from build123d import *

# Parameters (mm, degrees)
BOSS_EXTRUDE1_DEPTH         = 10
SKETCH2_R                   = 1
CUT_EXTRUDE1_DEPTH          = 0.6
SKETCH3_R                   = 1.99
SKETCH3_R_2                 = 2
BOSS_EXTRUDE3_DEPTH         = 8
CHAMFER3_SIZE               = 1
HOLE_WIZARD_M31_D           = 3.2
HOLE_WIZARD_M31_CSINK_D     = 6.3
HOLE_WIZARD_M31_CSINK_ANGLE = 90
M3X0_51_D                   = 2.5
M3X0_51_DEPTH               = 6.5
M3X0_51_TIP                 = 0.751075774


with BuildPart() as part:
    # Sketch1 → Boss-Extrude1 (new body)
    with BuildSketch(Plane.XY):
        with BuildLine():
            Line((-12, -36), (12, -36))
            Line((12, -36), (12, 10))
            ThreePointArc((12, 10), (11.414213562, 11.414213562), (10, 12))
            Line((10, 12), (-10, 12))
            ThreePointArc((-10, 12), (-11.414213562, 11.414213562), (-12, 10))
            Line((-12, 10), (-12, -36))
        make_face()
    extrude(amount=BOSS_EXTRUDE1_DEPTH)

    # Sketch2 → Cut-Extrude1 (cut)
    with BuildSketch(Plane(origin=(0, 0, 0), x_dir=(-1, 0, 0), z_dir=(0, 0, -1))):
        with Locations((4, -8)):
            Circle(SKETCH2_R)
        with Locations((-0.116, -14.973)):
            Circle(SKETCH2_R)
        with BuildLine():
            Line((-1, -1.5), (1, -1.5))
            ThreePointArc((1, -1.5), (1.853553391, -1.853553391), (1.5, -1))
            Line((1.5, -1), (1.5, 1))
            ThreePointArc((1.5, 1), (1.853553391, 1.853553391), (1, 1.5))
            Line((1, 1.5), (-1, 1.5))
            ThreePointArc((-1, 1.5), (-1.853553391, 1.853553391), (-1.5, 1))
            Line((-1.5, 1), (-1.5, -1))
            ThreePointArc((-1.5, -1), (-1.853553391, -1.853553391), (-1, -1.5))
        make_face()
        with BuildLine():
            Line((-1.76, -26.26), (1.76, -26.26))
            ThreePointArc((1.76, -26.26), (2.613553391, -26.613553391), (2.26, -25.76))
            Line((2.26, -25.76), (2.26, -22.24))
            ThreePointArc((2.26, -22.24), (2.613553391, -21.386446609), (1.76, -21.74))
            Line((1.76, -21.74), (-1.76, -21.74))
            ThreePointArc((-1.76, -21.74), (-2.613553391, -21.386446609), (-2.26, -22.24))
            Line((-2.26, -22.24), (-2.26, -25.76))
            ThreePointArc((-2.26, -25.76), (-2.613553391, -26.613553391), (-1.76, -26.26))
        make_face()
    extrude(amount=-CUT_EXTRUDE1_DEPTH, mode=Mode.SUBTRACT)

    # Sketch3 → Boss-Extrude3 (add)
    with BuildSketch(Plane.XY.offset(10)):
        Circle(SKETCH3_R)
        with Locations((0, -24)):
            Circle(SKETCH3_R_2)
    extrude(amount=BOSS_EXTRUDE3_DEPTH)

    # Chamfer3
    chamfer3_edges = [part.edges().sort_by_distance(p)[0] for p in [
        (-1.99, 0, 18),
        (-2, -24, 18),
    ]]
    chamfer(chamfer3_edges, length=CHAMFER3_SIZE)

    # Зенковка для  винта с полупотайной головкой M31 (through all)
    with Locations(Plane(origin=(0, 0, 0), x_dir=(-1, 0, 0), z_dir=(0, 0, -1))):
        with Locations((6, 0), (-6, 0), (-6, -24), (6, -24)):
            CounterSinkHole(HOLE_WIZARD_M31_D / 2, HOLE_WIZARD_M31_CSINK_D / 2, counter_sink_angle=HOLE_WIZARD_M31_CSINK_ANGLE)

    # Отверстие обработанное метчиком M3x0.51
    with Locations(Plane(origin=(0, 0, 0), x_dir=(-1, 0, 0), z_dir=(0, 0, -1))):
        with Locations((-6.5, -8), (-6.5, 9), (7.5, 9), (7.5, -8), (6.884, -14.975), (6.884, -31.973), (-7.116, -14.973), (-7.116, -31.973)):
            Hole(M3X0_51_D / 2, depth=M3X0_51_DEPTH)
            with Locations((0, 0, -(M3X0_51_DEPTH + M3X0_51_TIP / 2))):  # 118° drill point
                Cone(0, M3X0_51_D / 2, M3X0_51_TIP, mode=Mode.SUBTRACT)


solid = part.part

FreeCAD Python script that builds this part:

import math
import FreeCAD as App
import Part
import Sketcher
Q = App.Units.Quantity


def edges_at(feature, points):
    """Names of the edges that pass closest to the given points."""
    edges = feature.Shape.Edges
    near = lambda p: min(range(len(edges)), key=lambda i: edges[i].distToShape(Part.Vertex(*p))[0])
    return sorted({f"Edge{near(p) + 1}" for p in points})

doc = App.newDocument("Part")
body = doc.addObject("PartDesign::Body", "Body")

# Sketch on XY plane
sketch1 = body.newObject("Sketcher::SketchObject", "Sketch")
sketch1.AttachmentSupport = (doc.getObject("XY_Plane"), [""])
sketch1.MapMode = "FlatFace"
sketch1.addGeometry(Part.LineSegment(App.Vector(-12, -36, 0), App.Vector(12, -36, 0)), False)
sketch1.addGeometry(Part.LineSegment(App.Vector(12, -36, 0), App.Vector(12, 10, 0)), False)
sketch1.addGeometry(Part.ArcOfCircle(Part.Circle(App.Vector(10, 10, 0), App.Vector(0, 0, 1), 2), math.radians(0), math.radians(90)), False)
sketch1.addGeometry(Part.LineSegment(App.Vector(10, 12, 0), App.Vector(-10, 12, 0)), False)
sketch1.addGeometry(Part.ArcOfCircle(Part.Circle(App.Vector(-10, 10, 0), App.Vector(0, 0, 1), 2), math.radians(90), math.radians(180)), False)
sketch1.addGeometry(Part.LineSegment(App.Vector(-12, 10, 0), App.Vector(-12, -36, 0)), False)
sketch1.addConstraint(Sketcher.Constraint("Coincident", 0, 2, 1, 1))
sketch1.addConstraint(Sketcher.Constraint("Tangent", 1, 2, 2, 1))
sketch1.addConstraint(Sketcher.Constraint("Tangent", 2, 2, 3, 1))
sketch1.addConstraint(Sketcher.Constraint("Tangent", 3, 2, 4, 1))
sketch1.addConstraint(Sketcher.Constraint("Tangent", 4, 2, 5, 1))
sketch1.addConstraint(Sketcher.Constraint("Coincident", 5, 2, 0, 1))
sketch1.addConstraint(Sketcher.Constraint("Horizontal", 0))
sketch1.addConstraint(Sketcher.Constraint("Vertical", 1))
sketch1.addConstraint(Sketcher.Constraint("Horizontal", 3))
sketch1.addConstraint(Sketcher.Constraint("Vertical", 5))
sketch1.addConstraint(Sketcher.Constraint("Equal", 2, 4))
sketch1.addConstraint(Sketcher.Constraint("Radius", 2, Q("2 mm")))
sketch1.addConstraint(Sketcher.Constraint("DistanceX", 0, 1, 0, 2, Q("24 mm")))
sketch1.addConstraint(Sketcher.Constraint("DistanceY", 1, 1, 1, 2, Q("46 mm")))
sketch1.addConstraint(Sketcher.Constraint("DistanceX", -1, 1, 2, 3, Q("10 mm")))
sketch1.addConstraint(Sketcher.Constraint("DistanceY", -1, 1, 2, 3, Q("10 mm")))
pad1 = body.newObject("PartDesign::Pad", "Pad")
pad1.Profile = sketch1
pad1.Length = 10

# Sketch on XY plane
sketch2 = body.newObject("Sketcher::SketchObject", "Sketch001")
sketch2.AttachmentSupport = (doc.getObject("XY_Plane"), [""])
sketch2.MapMode = "FlatFace"
sketch2.addGeometry(Part.Circle(App.Vector(-4, -8, 0), App.Vector(0, 0, 1), 1), False)
sketch2.addGeometry(Part.Circle(App.Vector(0.1, -15, 0), App.Vector(0, 0, 1), 1), False)
sketch2.addGeometry(Part.LineSegment(App.Vector(1, -1.5, 0), App.Vector(-1, -1.5, 0)), False)
sketch2.addGeometry(Part.ArcOfCircle(Part.Circle(App.Vector(-1.5, -1.5, 0), App.Vector(0, 0, 1), 0.5), math.radians(90), math.radians(360)), False)
sketch2.addGeometry(Part.LineSegment(App.Vector(-1.5, -1, 0), App.Vector(-1.5, 1, 0)), False)
sketch2.addGeometry(Part.ArcOfCircle(Part.Circle(App.Vector(-1.5, 1.5, 0), App.Vector(0, 0, 1), 0.5), math.radians(0), math.radians(270)), False)
sketch2.addGeometry(Part.LineSegment(App.Vector(-1, 1.5, 0), App.Vector(1, 1.5, 0)), False)
sketch2.addGeometry(Part.ArcOfCircle(Part.Circle(App.Vector(1.5, 1.5, 0), App.Vector(0, 0, 1), 0.5), math.radians(-90), math.radians(180)), False)
sketch2.addGeometry(Part.LineSegment(App.Vector(1.5, 1, 0), App.Vector(1.5, -1, 0)), False)
sketch2.addGeometry(Part.ArcOfCircle(Part.Circle(App.Vector(1.5, -1.5, 0), App.Vector(0, 0, 1), 0.5), math.radians(180), math.radians(450)), False)
sketch2.addGeometry(Part.LineSegment(App.Vector(1.8, -26.3, 0), App.Vector(-1.8, -26.3, 0)), False)
sketch2.addGeometry(Part.ArcOfCircle(Part.Circle(App.Vector(-2.3, -26.3, 0), App.Vector(0, 0, 1), 0.5), math.radians(90), math.radians(360)), False)
sketch2.addGeometry(Part.LineSegment(App.Vector(-2.3, -25.8, 0), App.Vector(-2.3, -22.2, 0)), False)
sketch2.addGeometry(Part.ArcOfCircle(Part.Circle(App.Vector(-2.3, -21.7, 0), App.Vector(0, 0, 1), 0.5), math.radians(0), math.radians(270)), False)
sketch2.addGeometry(Part.LineSegment(App.Vector(-1.8, -21.7, 0), App.Vector(1.8, -21.7, 0)), False)
sketch2.addGeometry(Part.ArcOfCircle(Part.Circle(App.Vector(2.3, -21.7, 0), App.Vector(0, 0, 1), 0.5), math.radians(-90), math.radians(180)), False)
sketch2.addGeometry(Part.LineSegment(App.Vector(2.3, -22.2, 0), App.Vector(2.3, -25.8, 0)), False)
sketch2.addGeometry(Part.ArcOfCircle(Part.Circle(App.Vector(2.3, -26.3, 0), App.Vector(0, 0, 1), 0.5), math.radians(180), math.radians(450)), False)
sketch2.addConstraint(Sketcher.Constraint("Coincident", 2, 2, 3, 2))
sketch2.addConstraint(Sketcher.Constraint("Coincident", 3, 1, 4, 1))
sketch2.addConstraint(Sketcher.Constraint("Coincident", 4, 2, 5, 2))
sketch2.addConstraint(Sketcher.Constraint("Coincident", 5, 1, 6, 1))
sketch2.addConstraint(Sketcher.Constraint("Coincident", 6, 2, 7, 2))
sketch2.addConstraint(Sketcher.Constraint("Coincident", 7, 1, 8, 1))
sketch2.addConstraint(Sketcher.Constraint("Coincident", 8, 2, 9, 2))
sketch2.addConstraint(Sketcher.Constraint("Coincident", 9, 1, 2, 1))
sketch2.addConstraint(Sketcher.Constraint("Coincident", 10, 2, 11, 2))
sketch2.addConstraint(Sketcher.Constraint("Coincident", 11, 1, 12, 1))
sketch2.addConstraint(Sketcher.Constraint("Coincident", 12, 2, 13, 2))
sketch2.addConstraint(Sketcher.Constraint("Coincident", 13, 1, 14, 1))
sketch2.addConstraint(Sketcher.Constraint("Coincident", 14, 2, 15, 2))
sketch2.addConstraint(Sketcher.Constraint("Coincident", 15, 1, 16, 1))
sketch2.addConstraint(Sketcher.Constraint("Coincident", 16, 2, 17, 2))
sketch2.addConstraint(Sketcher.Constraint("Coincident", 17, 1, 10, 1))
sketch2.addConstraint(Sketcher.Constraint("Horizontal", 2))
sketch2.addConstraint(Sketcher.Constraint("Vertical", 4))
sketch2.addConstraint(Sketcher.Constraint("Horizontal", 6))
sketch2.addConstraint(Sketcher.Constraint("Vertical", 8))
sketch2.addConstraint(Sketcher.Constraint("Horizontal", 10))
sketch2.addConstraint(Sketcher.Constraint("Vertical", 12))
sketch2.addConstraint(Sketcher.Constraint("Horizontal", 14))
sketch2.addConstraint(Sketcher.Constraint("Vertical", 16))
sketch2.addConstraint(Sketcher.Constraint("Equal", 0, 1))
sketch2.addConstraint(Sketcher.Constraint("Equal", 3, 5))
sketch2.addConstraint(Sketcher.Constraint("Equal", 5, 7))
sketch2.addConstraint(Sketcher.Constraint("Equal", 7, 9))
sketch2.addConstraint(Sketcher.Constraint("Equal", 9, 11))
sketch2.addConstraint(Sketcher.Constraint("Equal", 11, 13))
sketch2.addConstraint(Sketcher.Constraint("Equal", 13, 15))
sketch2.addConstraint(Sketcher.Constraint("Equal", 15, 17))
sketch2.addConstraint(Sketcher.Constraint("Symmetric", 3, 3, 7, 3, -1, 1))
sketch2.addConstraint(Sketcher.Constraint("Symmetric", 5, 3, 9, 3, -1, 1))
sketch2.addConstraint(Sketcher.Constraint("Symmetric", 5, 3, 7, 3, -2))
sketch2.addConstraint(Sketcher.Constraint("Symmetric", 13, 3, 15, 3, -2))
sketch2.addConstraint(Sketcher.Constraint("Symmetric", 11, 3, 17, 3, -2))
sketch2.addConstraint(Sketcher.Constraint("Horizontal", 9, 3, 2, 2))
sketch2.addConstraint(Sketcher.Constraint("Horizontal", 7, 3, 5, 1))
sketch2.addConstraint(Sketcher.Constraint("Horizontal", 17, 3, 10, 2))
sketch2.addConstraint(Sketcher.Constraint("Horizontal", 15, 3, 13, 1))
sketch2.addConstraint(Sketcher.Constraint("Vertical", 11, 3, 13, 3))
sketch2.addConstraint(Sketcher.Constraint("Vertical", 5, 3, 3, 1))
sketch2.addConstraint(Sketcher.Constraint("Vertical", 9, 3, 7, 1))
sketch2.addConstraint(Sketcher.Constraint("Vertical", 13, 3, 11, 1))
sketch2.addConstraint(Sketcher.Constraint("Vertical", 17, 3, 15, 1))
sketch2.addConstraint(Sketcher.Constraint("Equal", 6, 4))
sketch2.addConstraint(Sketcher.Constraint("Equal", 14, 12))
sketch2.addConstraint(Sketcher.Constraint("Diameter", 0, Q("2 mm")))
sketch2.addConstraint(Sketcher.Constraint("Radius", 3, Q("0.5 mm")))
sketch2.addConstraint(Sketcher.Constraint("DistanceX", 2, 2, 2, 1, Q("2 mm")))
sketch2.addConstraint(Sketcher.Constraint("DistanceX", 0, 3, -1, 1, Q("4 mm")))
sketch2.addConstraint(Sketcher.Constraint("DistanceY", 0, 3, -1, 1, Q("8 mm")))
sketch2.addConstraint(Sketcher.Constraint("DistanceX", 10, 2, 10, 1, Q("3.52 mm")))
sketch2.addConstraint(Sketcher.Constraint("DistanceY", 11, 3, -1, 1, Q("26.26 mm")))
sketch2.addConstraint(Sketcher.Constraint("DistanceX", -1, 1, 1, 3, Q("0.116 mm")))
sketch2.addConstraint(Sketcher.Constraint("DistanceY", 1, 3, -1, 1, Q("14.973 mm")))
pocket1 = body.newObject("PartDesign::Pocket", "Pocket")
pocket1.Profile = sketch2
pocket1.Length = 0.6
pocket1.Reversed = True

# Sketch on XY plane
sketch3 = body.newObject("Sketcher::SketchObject", "Sketch002")
sketch3.AttachmentSupport = (doc.getObject("XY_Plane"), [""])
sketch3.MapMode = "FlatFace"
sketch3.AttachmentOffset = App.Placement(App.Vector(0, 0, 10), App.Rotation())
sketch3.addGeometry(Part.Circle(App.Vector(0, 0, 0), App.Vector(0, 0, 1), 2), False)
sketch3.addGeometry(Part.Circle(App.Vector(0, -24, 0), App.Vector(0, 0, 1), 2), False)
sketch3.addConstraint(Sketcher.Constraint("Coincident", 0, 3, -1, 1))
sketch3.addConstraint(Sketcher.Constraint("PointOnObject", 1, 3, -2))
sketch3.addConstraint(Sketcher.Constraint("Diameter", 1, Q("4 mm")))
sketch3.addConstraint(Sketcher.Constraint("Diameter", 0, Q("3.98 mm")))
sketch3.addConstraint(Sketcher.Constraint("DistanceY", 1, 3, -1, 1, Q("24 mm")))
pad2 = body.newObject("PartDesign::Pad", "Pad001")
pad2.Profile = sketch3
pad2.Length = 8
doc.recompute()

chamfer = body.newObject("PartDesign::Chamfer", "Chamfer")
chamfer.Base = (pad2, edges_at(pad2, [(-1.99, 0, 18), (-2, -24, 18)]))
chamfer.Size = 1

# Sketch on XY plane
sketch4 = body.newObject("Sketcher::SketchObject", "Sketch003")
sketch4.AttachmentSupport = (doc.getObject("XY_Plane"), [""])
sketch4.MapMode = "FlatFace"
sketch4.addGeometry(Part.Circle(App.Vector(-6, 0, 0), App.Vector(0, 0, 1), 1.6), False)
sketch4.addGeometry(Part.Circle(App.Vector(6, 0, 0), App.Vector(0, 0, 1), 1.6), False)
sketch4.addGeometry(Part.Circle(App.Vector(6, -24, 0), App.Vector(0, 0, 1), 1.6), False)
sketch4.addGeometry(Part.Circle(App.Vector(-6, -24, 0), App.Vector(0, 0, 1), 1.6), False)
sketch4.addConstraint(Sketcher.Constraint("Equal", 0, 1))
sketch4.addConstraint(Sketcher.Constraint("Equal", 1, 2))
sketch4.addConstraint(Sketcher.Constraint("Equal", 2, 3))
sketch4.addConstraint(Sketcher.Constraint("Symmetric", 0, 3, 1, 3, -1, 1))
sketch4.addConstraint(Sketcher.Constraint("Symmetric", 2, 3, 3, 3, -2))
sketch4.addConstraint(Sketcher.Constraint("PointOnObject", 0, 3, -1))
sketch4.addConstraint(Sketcher.Constraint("Vertical", 1, 3, 2, 3))
sketch4.addConstraint(Sketcher.Constraint("Diameter", 0, Q("3.2 mm")))
sketch4.addConstraint(Sketcher.Constraint("DistanceX", 0, 3, -1, 1, Q("6 mm")))
sketch4.addConstraint(Sketcher.Constraint("DistanceY", 2, 3, -1, 1, Q("24 mm")))
doc.recompute()
hole = body.newObject("PartDesign::Hole", "Hole")
hole.Profile = sketch4
hole.ThreadType = "None"
hole.Diameter = 3.2
hole.DepthType = "ThroughAll"
hole.HoleCutType = "Countersink"
hole.HoleCutDiameter = 6.3
hole.HoleCutCountersinkAngle = 90
hole.Reversed = True

# Sketch on XY plane
sketch5 = body.newObject("Sketcher::SketchObject", "Sketch004")
sketch5.AttachmentSupport = (doc.getObject("XY_Plane"), [""])
sketch5.MapMode = "FlatFace"
sketch5.addGeometry(Part.Circle(App.Vector(6.5, -8, 0), App.Vector(0, 0, 1), 1.2), False)
sketch5.addGeometry(Part.Circle(App.Vector(6.5, 9, 0), App.Vector(0, 0, 1), 1.2), False)
sketch5.addGeometry(Part.Circle(App.Vector(-7.5, 9, 0), App.Vector(0, 0, 1), 1.2), False)
sketch5.addGeometry(Part.Circle(App.Vector(-7.5, -8, 0), App.Vector(0, 0, 1), 1.2), False)
sketch5.addGeometry(Part.Circle(App.Vector(-6.9, -15, 0), App.Vector(0, 0, 1), 1.2), False)
sketch5.addGeometry(Part.Circle(App.Vector(-6.9, -32, 0), App.Vector(0, 0, 1), 1.2), False)
sketch5.addGeometry(Part.Circle(App.Vector(7.1, -15, 0), App.Vector(0, 0, 1), 1.2), False)
sketch5.addGeometry(Part.Circle(App.Vector(7.1, -32, 0), App.Vector(0, 0, 1), 1.2), False)
sketch5.addConstraint(Sketcher.Constraint("Equal", 0, 1))
sketch5.addConstraint(Sketcher.Constraint("Equal", 1, 2))
sketch5.addConstraint(Sketcher.Constraint("Equal", 2, 3))
sketch5.addConstraint(Sketcher.Constraint("Equal", 3, 4))
sketch5.addConstraint(Sketcher.Constraint("Equal", 4, 5))
sketch5.addConstraint(Sketcher.Constraint("Equal", 5, 6))
sketch5.addConstraint(Sketcher.Constraint("Equal", 6, 7))
sketch5.addConstraint(Sketcher.Constraint("Horizontal", 1, 3, 2, 3))
sketch5.addConstraint(Sketcher.Constraint("Horizontal", 0, 3, 3, 3))
sketch5.addConstraint(Sketcher.Constraint("Horizontal", 5, 3, 7, 3))
sketch5.addConstraint(Sketcher.Constraint("Vertical", 0, 3, 1, 3))
sketch5.addConstraint(Sketcher.Constraint("Vertical", 2, 3, 3, 3))
sketch5.addConstraint(Sketcher.Constraint("Vertical", 4, 3, 5, 3))
sketch5.addConstraint(Sketcher.Constraint("Vertical", 6, 3, 7, 3))
sketch5.addConstraint(Sketcher.Constraint("Diameter", 0, Q("2.5 mm")))
sketch5.addConstraint(Sketcher.Constraint("DistanceY", 0, 3, -1, 1, Q("8 mm")))
sketch5.addConstraint(Sketcher.Constraint("DistanceY", -1, 1, 1, 3, Q("9 mm")))
sketch5.addConstraint(Sketcher.Constraint("DistanceX", 2, 3, 1, 3, Q("14 mm")))
sketch5.addConstraint(Sketcher.Constraint("DistanceX", 4, 3, 6, 3, Q("14 mm")))
sketch5.addConstraint(Sketcher.Constraint("DistanceY", 5, 3, 6, 3, Q("17 mm")))
sketch5.addConstraint(Sketcher.Constraint("DistanceX", -1, 1, 0, 3, Q("6.5 mm")))
sketch5.addConstraint(Sketcher.Constraint("DistanceX", 4, 3, -1, 1, Q("6.884 mm")))
sketch5.addConstraint(Sketcher.Constraint("DistanceY", 4, 3, -1, 1, Q("14.975 mm")))
sketch5.addConstraint(Sketcher.Constraint("DistanceY", 5, 3, -1, 1, Q("31.973 mm")))
doc.recompute()
hole2 = body.newObject("PartDesign::Hole", "Hole001")
hole2.Profile = sketch5
hole2.ThreadType = "None"
hole2.Diameter = 2.5
hole2.DepthType = "Dimension"
hole2.Depth = 6.5
hole2.DrillPoint = "Angled"
hole2.DrillPointAngle = 118
hole2.Reversed = True

doc.recompute()
